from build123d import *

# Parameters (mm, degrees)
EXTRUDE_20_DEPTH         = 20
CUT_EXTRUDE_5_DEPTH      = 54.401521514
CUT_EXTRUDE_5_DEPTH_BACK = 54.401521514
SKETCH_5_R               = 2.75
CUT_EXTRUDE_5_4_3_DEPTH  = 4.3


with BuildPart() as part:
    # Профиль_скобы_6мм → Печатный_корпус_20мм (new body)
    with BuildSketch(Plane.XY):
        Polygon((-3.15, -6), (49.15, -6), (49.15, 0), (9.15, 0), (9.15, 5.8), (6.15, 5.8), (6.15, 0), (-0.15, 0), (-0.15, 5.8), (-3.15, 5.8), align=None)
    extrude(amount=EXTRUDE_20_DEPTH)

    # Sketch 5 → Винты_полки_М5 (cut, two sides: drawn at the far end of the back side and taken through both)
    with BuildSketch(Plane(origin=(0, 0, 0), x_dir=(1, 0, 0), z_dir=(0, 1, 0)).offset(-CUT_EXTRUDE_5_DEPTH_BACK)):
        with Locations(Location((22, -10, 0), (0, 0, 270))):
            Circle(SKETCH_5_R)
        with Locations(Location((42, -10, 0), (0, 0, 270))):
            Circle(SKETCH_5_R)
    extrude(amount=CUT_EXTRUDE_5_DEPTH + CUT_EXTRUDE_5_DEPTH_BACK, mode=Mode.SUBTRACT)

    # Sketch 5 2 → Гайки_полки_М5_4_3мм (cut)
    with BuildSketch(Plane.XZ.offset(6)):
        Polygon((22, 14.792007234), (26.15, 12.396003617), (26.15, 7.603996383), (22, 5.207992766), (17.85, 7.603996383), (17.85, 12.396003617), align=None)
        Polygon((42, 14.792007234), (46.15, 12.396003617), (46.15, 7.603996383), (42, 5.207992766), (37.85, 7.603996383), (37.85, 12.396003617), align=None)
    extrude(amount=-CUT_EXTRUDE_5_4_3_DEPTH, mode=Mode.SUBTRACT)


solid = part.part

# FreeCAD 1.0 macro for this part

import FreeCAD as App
import Part
import Sketcher

V = App.Vector
Q = App.Units.Quantity

doc = App.newDocument("Part")
body = doc.addObject("PartDesign::Body", "Body")

# Sketch on XY plane
sketch1 = body.newObject("Sketcher::SketchObject", "Sketch")
sketch1.AttachmentSupport = (doc.getObject("XY_Plane"), [""])
sketch1.MapMode = "FlatFace"
sketch1.addGeometry(Part.LineSegment(V(-3.15, -6, 0), V(49.15, -6, 0)), False)
sketch1.addGeometry(Part.LineSegment(V(49.15, -6, 0), V(49.15, 0, 0)), False)
sketch1.addGeometry(Part.LineSegment(V(49.15, 0, 0), V(9.15, 0, 0)), False)
sketch1.addGeometry(Part.LineSegment(V(9.15, 0, 0), V(9.15, 5.8, 0)), False)
sketch1.addGeometry(Part.LineSegment(V(9.15, 5.8, 0), V(6.15, 5.8, 0)), False)
sketch1.addGeometry(Part.LineSegment(V(6.15, 5.8, 0), V(6.15, 0, 0)), False)
sketch1.addGeometry(Part.LineSegment(V(6.15, 0, 0), V(-0.15, 0, 0)), False)
sketch1.addGeometry(Part.LineSegment(V(-0.15, 0, 0), V(-0.15, 5.8, 0)), False)
sketch1.addGeometry(Part.LineSegment(V(-0.15, 5.8, 0), V(-3.15, 5.8, 0)), False)
sketch1.addGeometry(Part.LineSegment(V(-3.15, 5.8, 0), V(-3.15, -6, 0)), False)
sketch1.addConstraint(Sketcher.Constraint("Coincident", 0, 2, 1, 1))
sketch1.addConstraint(Sketcher.Constraint("Coincident", 1, 2, 2, 1))
sketch1.addConstraint(Sketcher.Constraint("Coincident", 2, 2, 3, 1))
sketch1.addConstraint(Sketcher.Constraint("Coincident", 3, 2, 4, 1))
sketch1.addConstraint(Sketcher.Constraint("Coincident", 4, 2, 5, 1))
sketch1.addConstraint(Sketcher.Constraint("Coincident", 5, 2, 6, 1))
sketch1.addConstraint(Sketcher.Constraint("Coincident", 6, 2, 7, 1))
sketch1.addConstraint(Sketcher.Constraint("Coincident", 7, 2, 8, 1))
sketch1.addConstraint(Sketcher.Constraint("Coincident", 8, 2, 9, 1))
sketch1.addConstraint(Sketcher.Constraint("Coincident", 9, 2, 0, 1))
sketch1.addConstraint(Sketcher.Constraint("Horizontal", 0))
sketch1.addConstraint(Sketcher.Constraint("Vertical", 1))
sketch1.addConstraint(Sketcher.Constraint("Horizontal", 2))
sketch1.addConstraint(Sketcher.Constraint("Vertical", 3))
sketch1.addConstraint(Sketcher.Constraint("Horizontal", 4))
sketch1.addConstraint(Sketcher.Constraint("Vertical", 5))
sketch1.addConstraint(Sketcher.Constraint("Horizontal", 6))
sketch1.addConstraint(Sketcher.Constraint("Vertical", 7))
sketch1.addConstraint(Sketcher.Constraint("Horizontal", 8))
sketch1.addConstraint(Sketcher.Constraint("Vertical", 9))
sketch1.addConstraint(Sketcher.Constraint("PointOnObject", 1, 2, -1))
sketch1.addConstraint(Sketcher.Constraint("PointOnObject", 5, 2, -1))
sketch1.addConstraint(Sketcher.Constraint("Horizontal", 4, 2, 7, 2))
sketch1.addConstraint(Sketcher.Constraint("Equal", 4, 8))
sketch1.addConstraint(Sketcher.Constraint("DistanceX", 2, 2, 2, 1, 40.0))
sketch1.addConstraint(Sketcher.Constraint("DistanceX", 4, 2, 4, 1, 3.0))
sketch1.addConstraint(Sketcher.Constraint("DistanceY", 1, 1, 1, 2, 6.0))
sketch1.addConstraint(Sketcher.Constraint("DistanceX", 0, 1, 0, 2, 52.3))
sketch1.addConstraint(Sketcher.Constraint("DistanceY", 3, 1, 3, 2, 5.8))
sketch1.addConstraint(Sketcher.Constraint("DistanceX", -1, 1, 0, 2, 49.15))
pad1 = body.newObject("PartDesign::Pad", "Pad")
pad1.Profile = sketch1
pad1.Length = 20

# Sketch on XZ plane
sketch2 = body.newObject("Sketcher::SketchObject", "Sketch001")
sketch2.AttachmentSupport = (doc.getObject("XZ_Plane"), [""])
sketch2.MapMode = "FlatFace"
sketch2.addGeometry(Part.Circle(V(22, 10, 0), V(0, 0, 1), 2.75), False)
sketch2.addGeometry(Part.Circle(V(42, 10, 0), V(0, 0, 1), 2.75), False)
sketch2.addConstraint(Sketcher.Constraint("Equal", 0, 1))
sketch2.addConstraint(Sketcher.Constraint("Horizontal", 0, 3, 1, 3))
sketch2.addConstraint(Sketcher.Constraint("Diameter", 0, 5.5))
sketch2.addConstraint(Sketcher.Constraint("DistanceX", -1, 1, 0, 3, 22.0))
sketch2.addConstraint(Sketcher.Constraint("DistanceY", -1, 1, 0, 3, 10.0))
sketch2.addConstraint(Sketcher.Constraint("DistanceX", -1, 1, 1, 3, 42.0))
pocket1 = body.newObject("PartDesign::Pocket", "Pocket")
pocket1.Profile = sketch2
pocket1.Type = "ThroughAll"
pocket1.Midplane = True

# Sketch on XZ plane
sketch3 = body.newObject("Sketcher::SketchObject", "Sketch002")
sketch3.AttachmentSupport = (doc.getObject("XZ_Plane"), [""])
sketch3.MapMode = "FlatFace"
sketch3.AttachmentOffset = App.Placement(V(0, 0, 6), App.Rotation())
sketch3.addGeometry(Part.LineSegment(V(26.15, 12.396004, 0), V(22, 14.792007, 0)), False)
sketch3.addGeometry(Part.LineSegment(V(22, 14.792007, 0), V(17.85, 12.396004, 0)), False)
sketch3.addGeometry(Part.LineSegment(V(17.85, 12.396004, 0), V(17.85, 7.603996, 0)), False)
sketch3.addGeometry(Part.LineSegment(V(17.85, 7.603996, 0), V(22, 5.207993, 0)), False)
sketch3.addGeometry(Part.LineSegment(V(22, 5.207993, 0), V(26.15, 7.603996, 0)), False)
sketch3.addGeometry(Part.LineSegment(V(26.15, 7.603996, 0), V(26.15, 12.396004, 0)), False)
sketch3.addGeometry(Part.LineSegment(V(46.15, 12.396004, 0), V(42, 14.792007, 0)), False)
sketch3.addGeometry(Part.LineSegment(V(42, 14.792007, 0), V(37.85, 12.396004, 0)), False)
sketch3.addGeometry(Part.LineSegment(V(37.85, 12.396004, 0), V(37.85, 7.603996, 0)), False)
sketch3.addGeometry(Part.LineSegment(V(37.85, 7.603996, 0), V(42, 5.207993, 0)), False)
sketch3.addGeometry(Part.LineSegment(V(42, 5.207993, 0), V(46.15, 7.603996, 0)), False)
sketch3.addGeometry(Part.LineSegment(V(46.15, 7.603996, 0), V(46.15, 12.396004, 0)), False)
sketch3.addConstraint(Sketcher.Constraint("Coincident", 0, 2, 1, 1))
sketch3.addConstraint(Sketcher.Constraint("Coincident", 1, 2, 2, 1))
sketch3.addConstraint(Sketcher.Constraint("Coincident", 2, 2, 3, 1))
sketch3.addConstraint(Sketcher.Constraint("Coincident", 3, 2, 4, 1))
sketch3.addConstraint(Sketcher.Constraint("Coincident", 4, 2, 5, 1))
sketch3.addConstraint(Sketcher.Constraint("Coincident", 5, 2, 0, 1))
sketch3.addConstraint(Sketcher.Constraint("Coincident", 6, 2, 7, 1))
sketch3.addConstraint(Sketcher.Constraint("Coincident", 7, 2, 8, 1))
sketch3.addConstraint(Sketcher.Constraint("Coincident", 8, 2, 9, 1))
sketch3.addConstraint(Sketcher.Constraint("Coincident", 9, 2, 10, 1))
sketch3.addConstraint(Sketcher.Constraint("Coincident", 10, 2, 11, 1))
sketch3.addConstraint(Sketcher.Constraint("Coincident", 11, 2, 6, 1))
sketch3.addConstraint(Sketcher.Constraint("Vertical", 2))
sketch3.addConstraint(Sketcher.Constraint("Vertical", 5))
sketch3.addConstraint(Sketcher.Constraint("Vertical", 8))
sketch3.addConstraint(Sketcher.Constraint("Vertical", 11))
sketch3.addConstraint(Sketcher.Constraint("Parallel", 0, 3))
sketch3.addConstraint(Sketcher.Constraint("Parallel", 1, 4))
sketch3.addConstraint(Sketcher.Constraint("Parallel", 3, 6))
sketch3.addConstraint(Sketcher.Constraint("Parallel", 4, 7))
sketch3.addConstraint(Sketcher.Constraint("Parallel", 6, 9))
sketch3.addConstraint(Sketcher.Constraint("Parallel", 7, 10))
sketch3.addConstraint(Sketcher.Constraint("Horizontal", 2, 2, 4, 2))
sketch3.addConstraint(Sketcher.Constraint("Horizontal", 1, 2, 5, 2))
sketch3.addConstraint(Sketcher.Constraint("Horizontal", 0, 2, 6, 2))
sketch3.addConstraint(Sketcher.Constraint("Horizontal", 5, 2, 7, 2))
sketch3.addConstraint(Sketcher.Constraint("Horizontal", 4, 2, 8, 2))
sketch3.addConstraint(Sketcher.Constraint("Horizontal", 3, 2, 9, 2))
sketch3.addConstraint(Sketcher.Constraint("Horizontal", 8, 2, 10, 2))
sketch3.addConstraint(Sketcher.Constraint("Vertical", 0, 2, 3, 2))
sketch3.addConstraint(Sketcher.Constraint("Angle", 0, Q("150 deg")))
sketch3.addConstraint(Sketcher.Constraint("DistanceX", -1, 1, 0, 2, 22.0))
sketch3.addConstraint(Sketcher.Constraint("DistanceX", -1, 1, 6, 2, 42.0))
sketch3.addConstraint(Sketcher.Constraint("DistanceX", 2, 2, 4, 2, 8.3))
sketch3.addConstraint(Sketcher.Constraint("DistanceY", 2, 2, 2, 1, 4.792007))
sketch3.addConstraint(Sketcher.Constraint("DistanceY", -1, 1, 0, 2, 14.792007))
pocket2 = body.newObject("PartDesign::Pocket", "Pocket001")
pocket2.Profile = sketch3
pocket2.Length = 4.3

doc.recompute()
